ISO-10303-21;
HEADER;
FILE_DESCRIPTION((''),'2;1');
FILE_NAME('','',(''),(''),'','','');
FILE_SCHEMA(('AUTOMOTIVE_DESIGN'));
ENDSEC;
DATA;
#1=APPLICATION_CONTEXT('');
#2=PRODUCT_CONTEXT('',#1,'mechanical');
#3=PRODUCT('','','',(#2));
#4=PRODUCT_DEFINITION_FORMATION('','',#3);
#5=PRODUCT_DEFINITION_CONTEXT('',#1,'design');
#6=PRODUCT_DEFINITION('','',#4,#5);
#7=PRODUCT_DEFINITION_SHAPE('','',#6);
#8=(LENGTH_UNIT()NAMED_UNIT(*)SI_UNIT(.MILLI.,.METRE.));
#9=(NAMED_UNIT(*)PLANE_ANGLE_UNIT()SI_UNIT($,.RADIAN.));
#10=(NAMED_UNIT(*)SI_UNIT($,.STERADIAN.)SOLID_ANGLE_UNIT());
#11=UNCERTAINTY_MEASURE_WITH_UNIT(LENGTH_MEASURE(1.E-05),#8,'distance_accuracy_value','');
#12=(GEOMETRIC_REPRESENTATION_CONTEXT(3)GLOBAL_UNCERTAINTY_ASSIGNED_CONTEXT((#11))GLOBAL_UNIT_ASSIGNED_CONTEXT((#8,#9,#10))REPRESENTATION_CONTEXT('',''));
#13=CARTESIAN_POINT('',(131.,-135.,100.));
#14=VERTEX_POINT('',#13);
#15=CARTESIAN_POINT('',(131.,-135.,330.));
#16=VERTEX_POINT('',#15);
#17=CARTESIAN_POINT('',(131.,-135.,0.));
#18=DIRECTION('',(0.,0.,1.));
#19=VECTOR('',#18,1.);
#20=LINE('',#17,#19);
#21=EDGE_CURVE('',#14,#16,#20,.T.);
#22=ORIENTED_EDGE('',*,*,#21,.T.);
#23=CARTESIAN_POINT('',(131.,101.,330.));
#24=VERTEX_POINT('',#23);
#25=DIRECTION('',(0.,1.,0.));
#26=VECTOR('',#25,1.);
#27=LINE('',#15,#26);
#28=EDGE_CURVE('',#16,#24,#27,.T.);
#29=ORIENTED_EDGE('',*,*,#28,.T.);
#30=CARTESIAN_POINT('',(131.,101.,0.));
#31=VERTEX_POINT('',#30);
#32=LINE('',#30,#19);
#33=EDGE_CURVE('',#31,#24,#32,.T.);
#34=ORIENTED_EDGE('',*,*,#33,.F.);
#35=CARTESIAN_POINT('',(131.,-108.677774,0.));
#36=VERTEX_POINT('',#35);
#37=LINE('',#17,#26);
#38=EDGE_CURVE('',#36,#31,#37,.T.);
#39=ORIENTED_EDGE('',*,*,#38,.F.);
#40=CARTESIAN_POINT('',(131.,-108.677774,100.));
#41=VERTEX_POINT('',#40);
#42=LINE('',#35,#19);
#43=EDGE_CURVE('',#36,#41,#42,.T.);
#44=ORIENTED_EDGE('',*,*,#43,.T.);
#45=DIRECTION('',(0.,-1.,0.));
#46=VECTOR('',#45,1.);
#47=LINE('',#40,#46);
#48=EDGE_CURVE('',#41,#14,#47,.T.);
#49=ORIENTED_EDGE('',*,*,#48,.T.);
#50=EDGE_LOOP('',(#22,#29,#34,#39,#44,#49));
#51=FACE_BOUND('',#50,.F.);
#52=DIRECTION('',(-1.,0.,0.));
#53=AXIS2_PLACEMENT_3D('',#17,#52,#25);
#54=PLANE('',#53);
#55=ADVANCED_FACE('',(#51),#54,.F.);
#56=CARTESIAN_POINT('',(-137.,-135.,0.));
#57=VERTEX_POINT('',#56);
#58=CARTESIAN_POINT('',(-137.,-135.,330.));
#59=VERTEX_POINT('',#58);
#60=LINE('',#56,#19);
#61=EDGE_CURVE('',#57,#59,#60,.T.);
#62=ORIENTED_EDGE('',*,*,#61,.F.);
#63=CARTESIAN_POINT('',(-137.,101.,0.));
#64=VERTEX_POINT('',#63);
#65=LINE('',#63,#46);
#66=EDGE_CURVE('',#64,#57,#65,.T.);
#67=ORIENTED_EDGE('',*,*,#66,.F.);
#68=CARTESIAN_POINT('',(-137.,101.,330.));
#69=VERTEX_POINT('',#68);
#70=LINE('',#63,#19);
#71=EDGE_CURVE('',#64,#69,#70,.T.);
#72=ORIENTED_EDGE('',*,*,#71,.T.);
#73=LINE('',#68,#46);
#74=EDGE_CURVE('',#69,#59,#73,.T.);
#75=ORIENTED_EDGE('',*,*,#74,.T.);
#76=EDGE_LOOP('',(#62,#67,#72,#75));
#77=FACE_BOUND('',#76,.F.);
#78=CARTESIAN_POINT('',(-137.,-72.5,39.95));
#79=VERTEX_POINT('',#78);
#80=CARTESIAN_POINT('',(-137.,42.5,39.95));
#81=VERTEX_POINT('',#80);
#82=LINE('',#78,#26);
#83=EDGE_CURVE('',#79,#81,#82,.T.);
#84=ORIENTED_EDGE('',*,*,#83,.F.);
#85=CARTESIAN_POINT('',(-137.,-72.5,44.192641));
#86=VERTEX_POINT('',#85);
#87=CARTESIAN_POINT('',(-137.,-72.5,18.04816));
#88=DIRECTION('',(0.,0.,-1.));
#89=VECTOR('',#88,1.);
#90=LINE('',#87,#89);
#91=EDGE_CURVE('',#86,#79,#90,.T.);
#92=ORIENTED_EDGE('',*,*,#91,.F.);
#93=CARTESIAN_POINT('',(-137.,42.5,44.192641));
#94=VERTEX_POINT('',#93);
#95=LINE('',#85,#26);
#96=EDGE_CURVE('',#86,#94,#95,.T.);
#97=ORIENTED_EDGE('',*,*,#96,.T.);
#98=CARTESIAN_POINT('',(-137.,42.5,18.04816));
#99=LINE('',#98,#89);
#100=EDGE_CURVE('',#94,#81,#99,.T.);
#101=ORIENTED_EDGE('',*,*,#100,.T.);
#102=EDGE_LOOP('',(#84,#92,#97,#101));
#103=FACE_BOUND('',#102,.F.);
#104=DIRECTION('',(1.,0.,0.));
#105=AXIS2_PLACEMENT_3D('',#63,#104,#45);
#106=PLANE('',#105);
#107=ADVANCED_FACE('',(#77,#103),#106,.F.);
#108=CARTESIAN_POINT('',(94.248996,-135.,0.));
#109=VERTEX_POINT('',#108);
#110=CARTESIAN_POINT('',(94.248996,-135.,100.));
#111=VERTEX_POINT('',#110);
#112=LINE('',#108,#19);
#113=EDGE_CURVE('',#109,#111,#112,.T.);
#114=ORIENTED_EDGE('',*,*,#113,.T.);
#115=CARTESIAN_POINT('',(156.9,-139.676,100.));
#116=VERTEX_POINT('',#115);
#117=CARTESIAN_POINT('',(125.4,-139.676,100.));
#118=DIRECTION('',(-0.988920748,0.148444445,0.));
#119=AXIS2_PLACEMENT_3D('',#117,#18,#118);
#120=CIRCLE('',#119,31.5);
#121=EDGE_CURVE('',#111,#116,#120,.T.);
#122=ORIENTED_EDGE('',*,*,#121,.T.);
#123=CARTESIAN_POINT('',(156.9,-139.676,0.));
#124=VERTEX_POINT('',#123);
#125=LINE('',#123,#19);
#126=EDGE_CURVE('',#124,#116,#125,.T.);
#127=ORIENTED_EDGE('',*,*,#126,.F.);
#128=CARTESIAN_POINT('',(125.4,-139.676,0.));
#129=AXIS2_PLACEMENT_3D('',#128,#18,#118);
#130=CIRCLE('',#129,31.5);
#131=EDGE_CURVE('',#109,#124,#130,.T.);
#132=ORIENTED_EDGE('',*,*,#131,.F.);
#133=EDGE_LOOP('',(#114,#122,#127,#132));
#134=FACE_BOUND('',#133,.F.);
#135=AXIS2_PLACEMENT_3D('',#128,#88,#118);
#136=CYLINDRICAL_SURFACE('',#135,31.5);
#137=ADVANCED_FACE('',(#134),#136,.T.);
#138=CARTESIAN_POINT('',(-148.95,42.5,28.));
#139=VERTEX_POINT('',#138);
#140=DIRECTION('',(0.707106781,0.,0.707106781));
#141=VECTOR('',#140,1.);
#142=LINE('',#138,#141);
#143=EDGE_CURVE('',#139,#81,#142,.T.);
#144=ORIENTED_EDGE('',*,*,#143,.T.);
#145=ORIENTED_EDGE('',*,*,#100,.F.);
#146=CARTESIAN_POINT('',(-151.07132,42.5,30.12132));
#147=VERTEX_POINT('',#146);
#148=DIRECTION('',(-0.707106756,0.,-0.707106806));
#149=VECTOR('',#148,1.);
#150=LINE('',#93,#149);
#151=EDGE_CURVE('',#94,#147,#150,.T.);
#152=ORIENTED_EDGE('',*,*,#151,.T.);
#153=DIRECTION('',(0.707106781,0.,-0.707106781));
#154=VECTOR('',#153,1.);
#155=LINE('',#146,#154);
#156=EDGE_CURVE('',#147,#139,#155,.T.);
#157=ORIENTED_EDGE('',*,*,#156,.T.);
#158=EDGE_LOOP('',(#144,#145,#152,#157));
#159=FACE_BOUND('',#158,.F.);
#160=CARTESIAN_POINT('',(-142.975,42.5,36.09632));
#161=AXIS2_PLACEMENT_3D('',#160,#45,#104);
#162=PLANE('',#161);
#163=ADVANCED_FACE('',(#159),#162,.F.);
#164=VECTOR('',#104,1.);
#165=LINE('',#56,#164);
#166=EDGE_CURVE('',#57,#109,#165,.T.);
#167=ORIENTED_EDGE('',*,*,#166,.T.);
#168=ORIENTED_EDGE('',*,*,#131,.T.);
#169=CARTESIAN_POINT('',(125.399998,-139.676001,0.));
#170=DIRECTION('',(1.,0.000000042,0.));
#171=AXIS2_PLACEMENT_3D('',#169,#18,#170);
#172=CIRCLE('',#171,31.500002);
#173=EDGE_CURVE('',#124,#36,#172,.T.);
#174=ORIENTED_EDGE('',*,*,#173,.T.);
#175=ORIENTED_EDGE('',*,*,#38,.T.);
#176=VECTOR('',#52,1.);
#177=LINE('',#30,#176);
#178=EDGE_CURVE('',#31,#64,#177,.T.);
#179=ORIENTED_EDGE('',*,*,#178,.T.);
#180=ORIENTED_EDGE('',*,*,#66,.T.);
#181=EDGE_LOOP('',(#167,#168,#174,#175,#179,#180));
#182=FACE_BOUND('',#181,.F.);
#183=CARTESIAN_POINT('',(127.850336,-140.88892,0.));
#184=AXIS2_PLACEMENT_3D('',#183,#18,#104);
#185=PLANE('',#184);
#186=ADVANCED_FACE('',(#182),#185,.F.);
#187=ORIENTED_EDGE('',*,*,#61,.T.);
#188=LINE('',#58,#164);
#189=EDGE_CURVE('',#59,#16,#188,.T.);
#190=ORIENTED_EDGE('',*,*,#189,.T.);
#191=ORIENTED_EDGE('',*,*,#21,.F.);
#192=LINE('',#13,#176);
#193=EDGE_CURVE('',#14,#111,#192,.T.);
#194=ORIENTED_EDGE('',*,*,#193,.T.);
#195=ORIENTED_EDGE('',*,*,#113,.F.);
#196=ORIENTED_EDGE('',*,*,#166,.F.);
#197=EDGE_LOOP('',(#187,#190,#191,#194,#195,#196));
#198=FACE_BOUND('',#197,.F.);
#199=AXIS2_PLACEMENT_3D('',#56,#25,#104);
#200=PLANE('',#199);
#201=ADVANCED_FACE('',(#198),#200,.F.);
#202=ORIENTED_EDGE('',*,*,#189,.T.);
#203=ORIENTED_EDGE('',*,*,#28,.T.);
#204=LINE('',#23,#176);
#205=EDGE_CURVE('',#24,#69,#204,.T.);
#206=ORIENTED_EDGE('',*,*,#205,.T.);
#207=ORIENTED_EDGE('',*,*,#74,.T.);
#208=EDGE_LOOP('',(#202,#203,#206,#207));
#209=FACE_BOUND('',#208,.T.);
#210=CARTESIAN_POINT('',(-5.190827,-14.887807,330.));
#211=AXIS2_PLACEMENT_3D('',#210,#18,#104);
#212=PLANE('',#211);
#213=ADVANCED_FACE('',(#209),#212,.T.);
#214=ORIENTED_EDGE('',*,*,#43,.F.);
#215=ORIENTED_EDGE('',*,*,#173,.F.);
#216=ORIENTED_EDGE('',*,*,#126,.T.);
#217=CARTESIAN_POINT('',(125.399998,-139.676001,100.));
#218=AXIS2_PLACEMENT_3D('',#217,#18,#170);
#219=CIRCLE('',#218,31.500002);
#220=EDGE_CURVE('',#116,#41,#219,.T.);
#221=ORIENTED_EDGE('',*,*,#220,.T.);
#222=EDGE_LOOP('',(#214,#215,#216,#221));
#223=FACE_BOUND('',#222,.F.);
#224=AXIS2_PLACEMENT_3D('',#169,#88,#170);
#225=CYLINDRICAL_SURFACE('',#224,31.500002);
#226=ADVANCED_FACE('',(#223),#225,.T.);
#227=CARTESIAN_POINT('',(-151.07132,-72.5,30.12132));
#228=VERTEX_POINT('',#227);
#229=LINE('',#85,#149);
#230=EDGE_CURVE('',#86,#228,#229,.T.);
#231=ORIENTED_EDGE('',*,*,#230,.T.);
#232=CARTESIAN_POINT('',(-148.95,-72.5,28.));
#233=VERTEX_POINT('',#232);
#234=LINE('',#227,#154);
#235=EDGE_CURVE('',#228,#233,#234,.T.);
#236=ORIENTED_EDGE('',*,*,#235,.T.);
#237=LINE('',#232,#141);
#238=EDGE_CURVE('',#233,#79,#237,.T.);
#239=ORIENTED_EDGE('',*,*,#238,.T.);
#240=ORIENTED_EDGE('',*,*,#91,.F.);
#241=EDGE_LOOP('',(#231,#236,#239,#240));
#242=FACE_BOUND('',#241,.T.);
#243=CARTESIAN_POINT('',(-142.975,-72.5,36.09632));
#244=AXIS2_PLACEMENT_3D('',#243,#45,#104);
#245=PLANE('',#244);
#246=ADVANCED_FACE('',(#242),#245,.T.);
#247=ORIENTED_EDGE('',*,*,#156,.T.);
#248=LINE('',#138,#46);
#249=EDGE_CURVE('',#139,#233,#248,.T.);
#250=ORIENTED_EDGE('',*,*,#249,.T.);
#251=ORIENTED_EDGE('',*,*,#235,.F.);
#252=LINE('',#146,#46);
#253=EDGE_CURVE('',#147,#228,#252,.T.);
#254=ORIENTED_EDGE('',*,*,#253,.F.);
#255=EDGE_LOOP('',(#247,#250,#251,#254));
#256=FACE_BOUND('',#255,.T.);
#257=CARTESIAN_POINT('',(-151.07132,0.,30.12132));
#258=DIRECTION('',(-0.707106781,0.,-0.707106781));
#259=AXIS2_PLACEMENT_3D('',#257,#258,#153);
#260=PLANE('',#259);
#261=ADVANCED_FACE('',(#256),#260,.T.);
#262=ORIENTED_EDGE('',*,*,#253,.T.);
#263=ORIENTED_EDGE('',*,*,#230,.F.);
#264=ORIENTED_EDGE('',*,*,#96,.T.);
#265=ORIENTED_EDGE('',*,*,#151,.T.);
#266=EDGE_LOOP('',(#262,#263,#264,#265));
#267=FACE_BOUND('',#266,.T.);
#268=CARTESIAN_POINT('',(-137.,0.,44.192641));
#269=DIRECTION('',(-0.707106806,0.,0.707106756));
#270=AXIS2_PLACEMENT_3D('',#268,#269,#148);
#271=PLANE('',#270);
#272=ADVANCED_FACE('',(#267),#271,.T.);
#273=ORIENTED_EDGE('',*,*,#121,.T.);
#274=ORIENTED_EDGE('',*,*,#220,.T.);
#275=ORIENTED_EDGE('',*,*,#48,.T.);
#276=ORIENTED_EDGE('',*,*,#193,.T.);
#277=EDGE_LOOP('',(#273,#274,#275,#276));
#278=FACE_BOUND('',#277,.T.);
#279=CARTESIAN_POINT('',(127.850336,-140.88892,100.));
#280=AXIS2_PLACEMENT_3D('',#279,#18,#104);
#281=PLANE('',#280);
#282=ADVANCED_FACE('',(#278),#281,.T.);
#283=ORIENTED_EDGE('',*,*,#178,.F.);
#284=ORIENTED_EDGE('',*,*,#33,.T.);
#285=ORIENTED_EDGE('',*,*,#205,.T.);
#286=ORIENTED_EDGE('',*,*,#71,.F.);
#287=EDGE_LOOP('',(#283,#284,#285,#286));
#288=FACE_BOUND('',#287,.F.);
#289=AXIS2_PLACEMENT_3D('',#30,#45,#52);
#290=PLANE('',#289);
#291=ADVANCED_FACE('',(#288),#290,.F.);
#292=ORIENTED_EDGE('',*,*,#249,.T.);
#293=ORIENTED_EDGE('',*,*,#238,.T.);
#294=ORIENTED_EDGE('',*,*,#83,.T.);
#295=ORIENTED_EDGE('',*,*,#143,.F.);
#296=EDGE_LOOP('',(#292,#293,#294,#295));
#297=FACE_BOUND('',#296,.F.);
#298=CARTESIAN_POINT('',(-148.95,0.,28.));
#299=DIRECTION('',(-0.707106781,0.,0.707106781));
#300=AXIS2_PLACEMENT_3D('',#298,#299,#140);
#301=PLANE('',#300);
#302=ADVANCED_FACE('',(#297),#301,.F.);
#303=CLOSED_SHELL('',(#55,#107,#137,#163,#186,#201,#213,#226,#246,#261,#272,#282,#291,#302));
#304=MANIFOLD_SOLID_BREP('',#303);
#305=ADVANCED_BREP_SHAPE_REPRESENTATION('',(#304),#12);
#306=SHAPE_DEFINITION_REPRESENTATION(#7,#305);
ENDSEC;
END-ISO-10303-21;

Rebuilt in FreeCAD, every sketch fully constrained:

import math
import FreeCAD as App
import Part
import Sketcher
Q = App.Units.Quantity


def add_polygon(sketch, points):
    """Adds a closed chain of lines whose ends are joined by coincident constraints."""
    first, n = sketch.GeometryCount, len(points)
    for a, b in zip(points, points[1:] + points[:1]):
        sketch.addGeometry(Part.LineSegment(App.Vector(*a, 0), App.Vector(*b, 0)), False)
    for i in range(n):
        sketch.addConstraint(Sketcher.Constraint("Coincident", first + i, 2, first + (i + 1) % n, 1))

doc = App.newDocument("Part")
body = doc.addObject("PartDesign::Body", "Body")

sketch1 = body.newObject("Sketcher::SketchObject", "Sketch")
sketch1.AttachmentSupport = (doc.getObject("XY_Plane"), [""])
sketch1.MapMode = "FlatFace"
add_polygon(sketch1, [(-137, 101), (-137, -135), (131, -135), (131, 101)])
sketch1.addConstraint(Sketcher.Constraint("Vertical", 0))
sketch1.addConstraint(Sketcher.Constraint("Horizontal", 1))
sketch1.addConstraint(Sketcher.Constraint("Vertical", 2))
sketch1.addConstraint(Sketcher.Constraint("Horizontal", 3))
sketch1.addConstraint(Sketcher.Constraint("DistanceX", 1, 1, 1, 2, 268.0))
sketch1.addConstraint(Sketcher.Constraint("DistanceY", 0, 2, 0, 1, 236.0))
sketch1.addConstraint(Sketcher.Constraint("DistanceX", 0, 2, -1, 1, 137.0))
sketch1.addConstraint(Sketcher.Constraint("DistanceY", 0, 2, -1, 1, 135.0))
pad1 = body.newObject("PartDesign::Pad", "Pad")
pad1.Profile = sketch1
pad1.Length = 330

sketch2 = body.newObject("Sketcher::SketchObject", "Sketch001")
sketch2.AttachmentSupport = (doc.getObject("XY_Plane"), [""])
sketch2.MapMode = "FlatFace"
sketch2.addGeometry(Part.LineSegment(App.Vector(131, -135, 0), App.Vector(94, -135, 0)), False)
sketch2.addGeometry(Part.ArcOfCircle(Part.Circle(App.Vector(125, -140, 0), App.Vector(0, 0, 1), 32), math.radians(171), math.radians(360)), False)
sketch2.addGeometry(Part.ArcOfCircle(Part.Circle(App.Vector(125, -140, 0), App.Vector(0, 0, 1), 32), math.radians(0), math.radians(80)), False)
sketch2.addGeometry(Part.LineSegment(App.Vector(131, -109, 0), App.Vector(131, -135, 0)), False)
sketch2.addConstraint(Sketcher.Constraint("Coincident", 0, 2, 1, 1))
sketch2.addConstraint(Sketcher.Constraint("Tangent", 1, 2, 2, 1))
sketch2.addConstraint(Sketcher.Constraint("Coincident", 2, 2, 3, 1))
sketch2.addConstraint(Sketcher.Constraint("Coincident", 3, 2, 0, 1))
sketch2.addConstraint(Sketcher.Constraint("Horizontal", 0))
sketch2.addConstraint(Sketcher.Constraint("Vertical", 3))
sketch2.addConstraint(Sketcher.Constraint("Equal", 1, 2))
sketch2.addConstraint(Sketcher.Constraint("Horizontal", 2, 3, 1, 2))
sketch2.addConstraint(Sketcher.Constraint("Radius", 1, 31.5))
sketch2.addConstraint(Sketcher.Constraint("DistanceY", 0, 2, -1, 1, 135.0))
sketch2.addConstraint(Sketcher.Constraint("DistanceX", -1, 1, 2, 2, 131.0))
sketch2.addConstraint(Sketcher.Constraint("DistanceX", -1, 1, 1, 3, 125.4))
sketch2.addConstraint(Sketcher.Constraint("DistanceY", 1, 3, -1, 1, 139.676))
pad2 = body.newObject("PartDesign::Pad", "Pad001")
pad2.Profile = sketch2
pad2.Length = 100

sketch3 = body.newObject("Sketcher::SketchObject", "Sketch002")
sketch3.AttachmentSupport = (doc.getObject("XZ_Plane"), [""])
sketch3.MapMode = "FlatFace"
add_polygon(sketch3, [(-137, 44.2), (-151.1, 30.1), (-148.9, 28), (-134.9, 42.1)])
sketch3.addConstraint(Sketcher.Constraint("Perpendicular", 0, 1))
sketch3.addConstraint(Sketcher.Constraint("Perpendicular", 1, 2))
sketch3.addConstraint(Sketcher.Constraint("Perpendicular", 2, 3))
sketch3.addConstraint(Sketcher.Constraint("Angle", 0, Q("-134.999998 deg")))
sketch3.addConstraint(Sketcher.Constraint("Distance", 1, 3.0))
sketch3.addConstraint(Sketcher.Constraint("DistanceY", -1, 1, 1, 2, 28.0))
sketch3.addConstraint(Sketcher.Constraint("DistanceX", 3, 2, -1, 1, 137.0))
sketch3.addConstraint(Sketcher.Constraint("DistanceX", 1, 2, -1, 1, 148.95))
pad3 = body.newObject("PartDesign::Pad", "Pad002")
pad3.Profile = sketch3
pad3.Type = "TwoLengths"
pad3.Length = 72.5
pad3.Length2 = 42.5

doc.recompute()
